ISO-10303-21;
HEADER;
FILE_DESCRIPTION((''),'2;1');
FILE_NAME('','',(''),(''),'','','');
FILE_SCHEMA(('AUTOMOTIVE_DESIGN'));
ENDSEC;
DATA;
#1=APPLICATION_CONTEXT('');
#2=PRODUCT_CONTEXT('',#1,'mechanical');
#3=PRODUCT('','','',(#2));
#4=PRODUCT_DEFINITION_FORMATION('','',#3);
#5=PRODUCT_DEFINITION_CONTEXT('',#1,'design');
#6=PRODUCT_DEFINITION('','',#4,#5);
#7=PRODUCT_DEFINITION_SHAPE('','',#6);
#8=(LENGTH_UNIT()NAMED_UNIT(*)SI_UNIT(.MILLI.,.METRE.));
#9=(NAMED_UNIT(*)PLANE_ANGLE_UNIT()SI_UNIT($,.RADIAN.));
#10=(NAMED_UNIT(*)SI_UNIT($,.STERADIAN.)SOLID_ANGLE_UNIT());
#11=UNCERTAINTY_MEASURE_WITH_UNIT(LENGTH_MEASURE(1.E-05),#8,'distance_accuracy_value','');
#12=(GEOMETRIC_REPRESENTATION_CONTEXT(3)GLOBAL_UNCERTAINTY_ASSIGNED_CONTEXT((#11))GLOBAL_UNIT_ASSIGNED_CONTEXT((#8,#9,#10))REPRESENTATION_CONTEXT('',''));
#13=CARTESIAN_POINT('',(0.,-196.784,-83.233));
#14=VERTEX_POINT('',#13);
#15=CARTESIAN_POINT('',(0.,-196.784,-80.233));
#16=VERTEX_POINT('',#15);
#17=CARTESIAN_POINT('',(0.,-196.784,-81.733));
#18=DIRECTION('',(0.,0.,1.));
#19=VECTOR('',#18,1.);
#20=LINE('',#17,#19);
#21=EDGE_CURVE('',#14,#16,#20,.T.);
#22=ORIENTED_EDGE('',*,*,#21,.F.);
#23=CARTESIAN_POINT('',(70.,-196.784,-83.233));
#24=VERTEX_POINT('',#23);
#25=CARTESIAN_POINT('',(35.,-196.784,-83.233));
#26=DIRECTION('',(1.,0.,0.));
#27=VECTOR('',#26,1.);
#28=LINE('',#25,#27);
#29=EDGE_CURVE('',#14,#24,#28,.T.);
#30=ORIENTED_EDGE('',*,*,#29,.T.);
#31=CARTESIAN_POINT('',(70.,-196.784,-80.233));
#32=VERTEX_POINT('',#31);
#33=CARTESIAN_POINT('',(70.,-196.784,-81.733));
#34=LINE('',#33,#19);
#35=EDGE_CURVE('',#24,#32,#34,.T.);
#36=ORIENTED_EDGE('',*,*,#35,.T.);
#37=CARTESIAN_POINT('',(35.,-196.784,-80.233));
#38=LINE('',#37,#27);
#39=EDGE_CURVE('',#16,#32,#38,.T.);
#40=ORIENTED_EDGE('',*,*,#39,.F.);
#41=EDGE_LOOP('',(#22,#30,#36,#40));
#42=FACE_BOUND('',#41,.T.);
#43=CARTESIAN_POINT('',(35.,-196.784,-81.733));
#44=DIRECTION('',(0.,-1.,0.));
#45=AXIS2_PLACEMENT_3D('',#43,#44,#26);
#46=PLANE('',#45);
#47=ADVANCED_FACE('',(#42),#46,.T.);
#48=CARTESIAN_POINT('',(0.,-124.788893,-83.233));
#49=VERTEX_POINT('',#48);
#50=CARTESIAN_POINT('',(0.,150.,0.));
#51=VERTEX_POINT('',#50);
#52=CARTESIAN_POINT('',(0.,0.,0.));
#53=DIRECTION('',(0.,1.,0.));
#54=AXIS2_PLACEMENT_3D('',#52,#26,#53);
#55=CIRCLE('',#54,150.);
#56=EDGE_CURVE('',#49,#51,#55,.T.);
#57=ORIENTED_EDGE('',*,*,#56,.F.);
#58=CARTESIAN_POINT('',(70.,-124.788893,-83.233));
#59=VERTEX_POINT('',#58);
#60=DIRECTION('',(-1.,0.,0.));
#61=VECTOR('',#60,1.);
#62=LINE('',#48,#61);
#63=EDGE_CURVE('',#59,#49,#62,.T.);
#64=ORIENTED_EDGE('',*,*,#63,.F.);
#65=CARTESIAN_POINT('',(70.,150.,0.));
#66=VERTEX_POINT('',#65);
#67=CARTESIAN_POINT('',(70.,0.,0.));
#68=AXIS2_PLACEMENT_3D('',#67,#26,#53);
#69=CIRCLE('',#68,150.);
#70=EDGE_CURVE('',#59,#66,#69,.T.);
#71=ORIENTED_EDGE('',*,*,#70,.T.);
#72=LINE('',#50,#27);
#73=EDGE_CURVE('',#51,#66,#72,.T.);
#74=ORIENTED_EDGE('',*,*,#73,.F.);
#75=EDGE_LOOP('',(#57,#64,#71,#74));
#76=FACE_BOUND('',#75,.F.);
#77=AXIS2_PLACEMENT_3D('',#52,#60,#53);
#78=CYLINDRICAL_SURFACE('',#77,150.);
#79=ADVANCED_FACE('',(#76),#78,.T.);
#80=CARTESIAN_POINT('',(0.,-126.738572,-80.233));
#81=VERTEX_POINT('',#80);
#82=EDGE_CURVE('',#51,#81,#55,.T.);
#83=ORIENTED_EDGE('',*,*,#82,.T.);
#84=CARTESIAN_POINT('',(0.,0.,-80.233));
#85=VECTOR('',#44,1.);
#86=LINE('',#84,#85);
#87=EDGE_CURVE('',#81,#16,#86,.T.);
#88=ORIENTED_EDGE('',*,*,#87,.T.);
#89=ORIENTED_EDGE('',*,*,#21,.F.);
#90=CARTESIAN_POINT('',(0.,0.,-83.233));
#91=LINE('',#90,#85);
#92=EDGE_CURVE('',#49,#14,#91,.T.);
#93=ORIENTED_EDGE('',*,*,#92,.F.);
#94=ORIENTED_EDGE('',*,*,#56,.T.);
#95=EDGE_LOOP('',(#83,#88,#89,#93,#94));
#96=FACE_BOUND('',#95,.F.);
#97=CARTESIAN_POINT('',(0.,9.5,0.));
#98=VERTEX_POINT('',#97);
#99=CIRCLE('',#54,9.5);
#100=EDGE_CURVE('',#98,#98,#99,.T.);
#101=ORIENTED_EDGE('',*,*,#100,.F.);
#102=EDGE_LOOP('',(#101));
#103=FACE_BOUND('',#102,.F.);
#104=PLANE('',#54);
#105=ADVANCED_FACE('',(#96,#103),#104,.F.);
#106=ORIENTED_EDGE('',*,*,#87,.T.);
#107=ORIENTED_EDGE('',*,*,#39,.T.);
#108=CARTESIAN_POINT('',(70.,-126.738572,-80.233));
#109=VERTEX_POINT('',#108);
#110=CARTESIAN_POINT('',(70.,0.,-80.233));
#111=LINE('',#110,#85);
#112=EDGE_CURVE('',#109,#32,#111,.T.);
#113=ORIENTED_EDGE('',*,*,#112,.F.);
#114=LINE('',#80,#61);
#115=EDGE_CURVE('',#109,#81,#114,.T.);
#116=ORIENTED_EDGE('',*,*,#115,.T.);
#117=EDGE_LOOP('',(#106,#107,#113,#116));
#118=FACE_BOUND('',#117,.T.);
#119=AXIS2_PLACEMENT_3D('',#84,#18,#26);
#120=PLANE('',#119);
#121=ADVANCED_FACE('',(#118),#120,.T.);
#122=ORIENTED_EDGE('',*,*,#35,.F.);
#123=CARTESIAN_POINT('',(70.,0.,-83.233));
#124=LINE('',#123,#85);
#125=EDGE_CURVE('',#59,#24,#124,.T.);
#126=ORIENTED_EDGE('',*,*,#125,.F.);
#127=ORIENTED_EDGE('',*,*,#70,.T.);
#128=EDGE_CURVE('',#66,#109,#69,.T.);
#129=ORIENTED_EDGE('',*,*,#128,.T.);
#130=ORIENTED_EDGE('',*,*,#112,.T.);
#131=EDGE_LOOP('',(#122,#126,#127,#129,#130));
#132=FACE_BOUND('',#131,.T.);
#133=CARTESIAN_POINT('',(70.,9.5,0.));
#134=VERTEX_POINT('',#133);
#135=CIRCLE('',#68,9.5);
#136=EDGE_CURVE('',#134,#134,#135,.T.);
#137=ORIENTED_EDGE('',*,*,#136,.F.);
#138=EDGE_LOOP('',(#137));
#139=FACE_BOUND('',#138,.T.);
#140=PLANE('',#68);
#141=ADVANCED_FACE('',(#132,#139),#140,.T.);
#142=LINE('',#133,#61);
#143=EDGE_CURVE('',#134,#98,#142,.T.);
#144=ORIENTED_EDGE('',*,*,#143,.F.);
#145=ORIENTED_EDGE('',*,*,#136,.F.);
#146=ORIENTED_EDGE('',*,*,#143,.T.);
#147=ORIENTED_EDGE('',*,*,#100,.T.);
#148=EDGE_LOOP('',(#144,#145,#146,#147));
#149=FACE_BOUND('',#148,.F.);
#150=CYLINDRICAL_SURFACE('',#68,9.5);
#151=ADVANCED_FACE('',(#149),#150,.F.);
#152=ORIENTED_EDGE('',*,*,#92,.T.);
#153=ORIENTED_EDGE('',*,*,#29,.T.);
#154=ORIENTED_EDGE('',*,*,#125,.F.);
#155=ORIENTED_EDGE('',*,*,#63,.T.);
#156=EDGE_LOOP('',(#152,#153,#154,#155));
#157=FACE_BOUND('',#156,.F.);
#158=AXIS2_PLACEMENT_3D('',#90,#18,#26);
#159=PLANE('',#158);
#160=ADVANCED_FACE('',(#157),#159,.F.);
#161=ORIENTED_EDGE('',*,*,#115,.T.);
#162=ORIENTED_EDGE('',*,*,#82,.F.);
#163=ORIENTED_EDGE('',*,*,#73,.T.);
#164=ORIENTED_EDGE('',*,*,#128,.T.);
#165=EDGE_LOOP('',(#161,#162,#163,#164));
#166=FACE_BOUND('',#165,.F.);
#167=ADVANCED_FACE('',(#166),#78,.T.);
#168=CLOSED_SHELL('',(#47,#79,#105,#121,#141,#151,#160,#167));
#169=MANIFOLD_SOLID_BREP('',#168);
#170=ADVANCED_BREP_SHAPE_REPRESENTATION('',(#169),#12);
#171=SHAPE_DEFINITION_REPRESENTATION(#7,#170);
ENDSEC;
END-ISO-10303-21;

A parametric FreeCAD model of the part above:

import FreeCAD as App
import Part
import Sketcher

V = App.Vector
Q = App.Units.Quantity


def add_polygon(sketch, points):
    """Adds a closed chain of lines whose ends are joined by coincident constraints."""
    first, n = sketch.GeometryCount, len(points)
    for a, b in zip(points, points[1:] + points[:1]):
        sketch.addGeometry(Part.LineSegment(App.Vector(*a, 0), App.Vector(*b, 0)), False)
    for i in range(n):
        sketch.addConstraint(Sketcher.Constraint("Coincident", first + i, 2, first + (i + 1) % n, 1))

doc = App.newDocument("Part")
params = doc.addObject("Spreadsheet::Sheet", "Params")
for row, (alias, value) in enumerate([
    ("sketch1_diameter", "300 mm"),
    ("pad1_length", "70 mm"),
    ("sketch2_width", "70 mm"),
    ("sketch2_height", "3 mm"),
    ("pad2_length", "196.784 mm"),
    ("sketch3_diameter", "19 mm"),
    ("pocket1_length", "184 mm"),
], start=1):
    params.set(f"A{row}", alias)
    params.set(f"B{row}", "=" + value)
    params.setAlias(f"B{row}", alias)

body = doc.addObject("PartDesign::Body", "Body")

# Sketch on YZ plane
sketch1 = body.newObject("Sketcher::SketchObject", "Sketch")
sketch1.AttachmentSupport = (doc.getObject("YZ_Plane"), [""])
sketch1.MapMode = "FlatFace"
sketch1.addGeometry(Part.Circle(V(0, 0, 0), V(0, 0, 1), 150), False)
sketch1.addConstraint([
    Sketcher.Constraint("Coincident", 0, 3, -1, 1),
    Sketcher.Constraint("Diameter", 0, Q("300 mm")),
])
sketch1.setExpression("Constraints[1]", "Params.sketch1_diameter")
pad1 = body.newObject("PartDesign::Pad", "Pad")
pad1.Profile = sketch1
pad1.setExpression("Length", "Params.pad1_length")

# Sketch on XZ plane
sketch2 = body.newObject("Sketcher::SketchObject", "Sketch001")
sketch2.AttachmentSupport = (doc.getObject("XZ_Plane"), [""])
sketch2.MapMode = "FlatFace"
add_polygon(sketch2, [(0, -80.2), (0, -83.2), (70, -83.2), (70, -80.2)])  # lines 0-3
sketch2.addConstraint([
    Sketcher.Constraint("Vertical", 0),
    Sketcher.Constraint("Horizontal", 1),
    Sketcher.Constraint("Vertical", 2),
    Sketcher.Constraint("Horizontal", 3),
    Sketcher.Constraint("PointOnObject", 0, 2, -2),
    Sketcher.Constraint("DistanceX", 1, 1, 1, 2, Q("70 mm")),
    Sketcher.Constraint("DistanceY", 0, 2, 0, 1, Q("3 mm")),
    Sketcher.Constraint("DistanceY", 0, 2, -1, 1, Q("83.233 mm")),
])
sketch2.setExpression("Constraints[9]", "Params.sketch2_width")
sketch2.setExpression("Constraints[10]", "Params.sketch2_height")
pad2 = body.newObject("PartDesign::Pad", "Pad001")
pad2.Profile = sketch2
pad2.setExpression("Length", "Params.pad2_length")

# Sketch on YZ plane
sketch3 = body.newObject("Sketcher::SketchObject", "Sketch002")
sketch3.AttachmentSupport = (doc.getObject("YZ_Plane"), [""])
sketch3.MapMode = "FlatFace"
sketch3.AttachmentOffset = App.Placement(V(0, 0, 70), App.Rotation())
sketch3.addGeometry(Part.Circle(V(0, 0, 0), V(0, 0, 1), 10), False)
sketch3.addConstraint([
    Sketcher.Constraint("Coincident", 0, 3, -1, 1),
    Sketcher.Constraint("Diameter", 0, Q("19 mm")),
])
sketch3.setExpression("Constraints[1]", "Params.sketch3_diameter")
pocket1 = body.newObject("PartDesign::Pocket", "Pocket")
pocket1.Profile = sketch3
pocket1.setExpression("Length", "Params.pocket1_length")

doc.recompute()
